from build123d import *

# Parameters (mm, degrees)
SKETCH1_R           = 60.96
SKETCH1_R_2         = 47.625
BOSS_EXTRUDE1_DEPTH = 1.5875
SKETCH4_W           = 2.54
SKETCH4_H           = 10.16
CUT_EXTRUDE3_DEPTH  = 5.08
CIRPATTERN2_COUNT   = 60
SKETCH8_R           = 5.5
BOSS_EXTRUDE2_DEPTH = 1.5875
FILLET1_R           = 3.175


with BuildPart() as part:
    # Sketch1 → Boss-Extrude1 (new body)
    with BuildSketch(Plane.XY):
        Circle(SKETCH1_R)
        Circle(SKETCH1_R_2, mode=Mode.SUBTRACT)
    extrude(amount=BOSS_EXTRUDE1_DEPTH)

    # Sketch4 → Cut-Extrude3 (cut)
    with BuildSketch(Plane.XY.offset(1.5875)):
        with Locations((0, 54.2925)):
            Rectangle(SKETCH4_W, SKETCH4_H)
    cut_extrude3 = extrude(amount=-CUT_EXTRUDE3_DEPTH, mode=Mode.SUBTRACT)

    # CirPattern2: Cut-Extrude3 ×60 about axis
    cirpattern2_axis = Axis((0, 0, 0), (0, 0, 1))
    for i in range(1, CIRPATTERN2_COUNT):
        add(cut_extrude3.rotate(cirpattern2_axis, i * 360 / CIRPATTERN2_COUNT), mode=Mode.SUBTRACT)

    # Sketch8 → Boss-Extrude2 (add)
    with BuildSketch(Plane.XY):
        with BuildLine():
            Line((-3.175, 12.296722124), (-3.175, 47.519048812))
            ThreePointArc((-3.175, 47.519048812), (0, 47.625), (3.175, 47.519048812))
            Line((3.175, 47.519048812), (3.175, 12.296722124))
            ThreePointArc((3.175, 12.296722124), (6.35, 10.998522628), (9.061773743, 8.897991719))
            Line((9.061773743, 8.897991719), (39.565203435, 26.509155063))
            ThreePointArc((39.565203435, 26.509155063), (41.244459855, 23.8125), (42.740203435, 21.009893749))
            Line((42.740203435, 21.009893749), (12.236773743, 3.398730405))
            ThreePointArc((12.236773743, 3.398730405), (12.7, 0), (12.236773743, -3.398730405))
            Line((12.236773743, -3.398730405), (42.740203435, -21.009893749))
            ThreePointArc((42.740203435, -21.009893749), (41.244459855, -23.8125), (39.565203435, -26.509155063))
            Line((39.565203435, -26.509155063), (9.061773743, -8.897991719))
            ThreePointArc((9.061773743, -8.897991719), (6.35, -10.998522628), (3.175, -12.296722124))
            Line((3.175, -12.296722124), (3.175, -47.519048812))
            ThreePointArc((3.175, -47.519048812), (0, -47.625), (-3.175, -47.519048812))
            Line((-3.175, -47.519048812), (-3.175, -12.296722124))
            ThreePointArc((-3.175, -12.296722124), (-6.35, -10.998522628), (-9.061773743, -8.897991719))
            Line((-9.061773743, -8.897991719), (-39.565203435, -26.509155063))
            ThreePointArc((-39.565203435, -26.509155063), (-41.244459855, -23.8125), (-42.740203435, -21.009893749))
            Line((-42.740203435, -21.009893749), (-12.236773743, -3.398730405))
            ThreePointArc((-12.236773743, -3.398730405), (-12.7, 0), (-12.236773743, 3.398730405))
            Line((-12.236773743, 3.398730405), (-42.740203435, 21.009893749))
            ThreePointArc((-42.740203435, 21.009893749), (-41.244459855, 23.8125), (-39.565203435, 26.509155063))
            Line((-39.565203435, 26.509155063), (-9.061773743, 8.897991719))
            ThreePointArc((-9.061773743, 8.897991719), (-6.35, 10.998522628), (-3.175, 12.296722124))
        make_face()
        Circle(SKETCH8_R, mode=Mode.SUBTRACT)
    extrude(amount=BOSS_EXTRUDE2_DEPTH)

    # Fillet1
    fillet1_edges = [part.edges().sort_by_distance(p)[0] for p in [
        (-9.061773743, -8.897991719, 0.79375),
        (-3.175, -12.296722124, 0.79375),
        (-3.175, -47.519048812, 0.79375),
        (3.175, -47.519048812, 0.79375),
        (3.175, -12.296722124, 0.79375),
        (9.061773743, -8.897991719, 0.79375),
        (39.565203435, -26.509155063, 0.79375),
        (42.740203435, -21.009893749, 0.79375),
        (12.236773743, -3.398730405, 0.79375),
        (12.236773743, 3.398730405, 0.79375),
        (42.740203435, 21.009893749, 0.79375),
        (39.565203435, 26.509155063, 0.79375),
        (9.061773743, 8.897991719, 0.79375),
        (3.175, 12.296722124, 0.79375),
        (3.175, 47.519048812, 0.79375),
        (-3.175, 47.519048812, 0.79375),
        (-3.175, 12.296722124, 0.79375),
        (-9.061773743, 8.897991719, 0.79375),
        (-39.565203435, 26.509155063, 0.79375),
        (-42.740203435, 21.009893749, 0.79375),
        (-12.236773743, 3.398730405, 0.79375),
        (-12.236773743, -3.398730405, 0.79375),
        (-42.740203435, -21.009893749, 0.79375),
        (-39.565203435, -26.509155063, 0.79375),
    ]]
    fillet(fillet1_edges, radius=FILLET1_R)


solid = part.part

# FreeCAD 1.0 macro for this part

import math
import FreeCAD as App
import Part
import Sketcher
Q = App.Units.Quantity


def edges_at(feature, points):
    """Names of the edges that pass closest to the given points."""
    edges = feature.Shape.Edges
    near = lambda p: min(range(len(edges)), key=lambda i: edges[i].distToShape(Part.Vertex(*p))[0])
    return sorted({f"Edge{near(p) + 1}" for p in points})


def add_polygon(sketch, points):
    """Adds a closed chain of lines whose ends are joined by coincident constraints."""
    first, n = sketch.GeometryCount, len(points)
    for a, b in zip(points, points[1:] + points[:1]):
        sketch.addGeometry(Part.LineSegment(App.Vector(*a, 0), App.Vector(*b, 0)), False)
    for i in range(n):
        sketch.addConstraint(Sketcher.Constraint("Coincident", first + i, 2, first + (i + 1) % n, 1))

doc = App.newDocument("Part")
body = doc.addObject("PartDesign::Body", "Body")

sketch1 = doc.addObject("Sketcher::SketchObject", "Sketch")
body.addObject(sketch1)
sketch1.AttachmentSupport = (doc.XY_Plane, [""])
sketch1.MapMode = "FlatFace"
sketch1.addGeometry([
    Part.Circle(App.Vector(0, 0, 0), App.Vector(0, 0, 1), 61),
    Part.Circle(App.Vector(0, 0, 0), App.Vector(0, 0, 1), 48),
], False)
sketch1.addConstraint([
    Sketcher.Constraint("Coincident", 0, 3, -1, 1),
    Sketcher.Constraint("Coincident", 1, 3, -1, 1),
    Sketcher.Constraint("Diameter", 0, Q("4.8 in")),
    Sketcher.Constraint("Diameter", 1, Q("3.75 in")),
])
pad1 = doc.addObject("PartDesign::Pad", "Pad")
body.addObject(pad1)
pad1.Profile = sketch1
pad1.Length = Q("0.0625 in")

sketch2 = doc.addObject("Sketcher::SketchObject", "Sketch001")
body.addObject(sketch2)
sketch2.AttachmentSupport = (doc.XY_Plane, [""])
sketch2.MapMode = "FlatFace"
sketch2.AttachmentOffset = App.Placement(App.Vector(0, 0, 0.0625 * 25.4), App.Rotation())
add_polygon(sketch2, [(-1.3, 59.4), (-1.3, 49.2), (1.3, 49.2), (1.3, 59.4)])
sketch2.addConstraint([
    Sketcher.Constraint("Vertical", 0),
    Sketcher.Constraint("Horizontal", 1),
    Sketcher.Constraint("Vertical", 2),
    Sketcher.Constraint("Horizontal", 3),
    Sketcher.Constraint("DistanceX", 1, 1, 1, 2, Q("0.1 in")),
    Sketcher.Constraint("DistanceY", 0, 2, 0, 1, Q("0.4 in")),
    Sketcher.Constraint("DistanceX", 0, 2, -1, 1, Q("0.05 in")),
    Sketcher.Constraint("DistanceY", -1, 1, 0, 2, Q("1.9375 in")),
])
pocket1 = doc.addObject("PartDesign::Pocket", "Pocket")
body.addObject(pocket1)
pocket1.Profile = sketch2
pocket1.Length = Q("0.2 in")
doc.recompute()

polarpattern = doc.addObject("PartDesign::PolarPattern", "PolarPattern")
body.addObject(polarpattern)
polarpattern.Originals = [pocket1]
polarpattern.Axis = (doc.Z_Axis, [""])
polarpattern.Angle = 360
polarpattern.Occurrences = 60
body.Tip = polarpattern

sketch3 = doc.addObject("Sketcher::SketchObject", "Sketch002")
body.addObject(sketch3)
sketch3.AttachmentSupport = (doc.XY_Plane, [""])
sketch3.MapMode = "FlatFace"
sketch3.addGeometry([
    Part.LineSegment(App.Vector(-3, 48, 0), App.Vector(-3, 12, 0)),
    Part.ArcOfCircle(Part.Circle(App.Vector(0, 0, 0), App.Vector(0, 0, 1), 13), math.radians(104), math.radians(136)),
    Part.LineSegment(App.Vector(-9, 9, 0), App.Vector(-40, 27, 0)),
    Part.ArcOfCircle(Part.Circle(App.Vector(0, 0, 0), App.Vector(0, 0, 1), 48), math.radians(146.18), math.radians(153.82)),
    Part.LineSegment(App.Vector(-43, 21, 0), App.Vector(-12, 3, 0)),
    Part.ArcOfCircle(Part.Circle(App.Vector(0, 0, 0), App.Vector(0, 0, 1), 13), math.radians(164), math.radians(196)),
    Part.LineSegment(App.Vector(-12, -3, 0), App.Vector(-43, -21, 0)),
    Part.ArcOfCircle(Part.Circle(App.Vector(0, 0, 0), App.Vector(0, 0, 1), 48), math.radians(-153.82), math.radians(-146.18)),
    Part.LineSegment(App.Vector(-40, -27, 0), App.Vector(-9, -9, 0)),
    Part.ArcOfCircle(Part.Circle(App.Vector(0, 0, 0), App.Vector(0, 0, 1), 13), math.radians(-136), math.radians(-104)),
    Part.LineSegment(App.Vector(-3, -12, 0), App.Vector(-3, -48, 0)),
    Part.ArcOfCircle(Part.Circle(App.Vector(0, 0, 0), App.Vector(0, 0, 1), 48), math.radians(-93.82), math.radians(-86.18)),
    Part.LineSegment(App.Vector(3, -48, 0), App.Vector(3, -12, 0)),
    Part.ArcOfCircle(Part.Circle(App.Vector(0, 0, 0), App.Vector(0, 0, 1), 13), math.radians(-76), math.radians(-44)),
    Part.LineSegment(App.Vector(9, -9, 0), App.Vector(40, -27, 0)),
    Part.ArcOfCircle(Part.Circle(App.Vector(0, 0, 0), App.Vector(0, 0, 1), 48), math.radians(-33.82), math.radians(-26.18)),
    Part.LineSegment(App.Vector(43, -21, 0), App.Vector(12, -3, 0)),
    Part.ArcOfCircle(Part.Circle(App.Vector(0, 0, 0), App.Vector(0, 0, 1), 13), math.radians(-16), math.radians(16)),
    Part.LineSegment(App.Vector(12, 3, 0), App.Vector(43, 21, 0)),
    Part.ArcOfCircle(Part.Circle(App.Vector(0, 0, 0), App.Vector(0, 0, 1), 48), math.radians(26.18), math.radians(33.82)),
    Part.LineSegment(App.Vector(40, 27, 0), App.Vector(9, 9, 0)),
    Part.ArcOfCircle(Part.Circle(App.Vector(0, 0, 0), App.Vector(0, 0, 1), 13), math.radians(44), math.radians(76)),
    Part.LineSegment(App.Vector(3, 12, 0), App.Vector(3, 48, 0)),
    Part.ArcOfCircle(Part.Circle(App.Vector(0, 0, 0), App.Vector(0, 0, 1), 48), math.radians(86.18), math.radians(93.82)),
    Part.Circle(App.Vector(0, 0, 0), App.Vector(0, 0, 1), 6),
], False)
sketch3.addConstraint([
    Sketcher.Constraint("Coincident", 0, 2, 1, 1),
    Sketcher.Constraint("Coincident", 1, 2, 2, 1),
    Sketcher.Constraint("Coincident", 2, 2, 3, 1),
    Sketcher.Constraint("Coincident", 3, 2, 4, 1),
    Sketcher.Constraint("Coincident", 4, 2, 5, 1),
    Sketcher.Constraint("Coincident", 5, 2, 6, 1),
    Sketcher.Constraint("Coincident", 6, 2, 7, 1),
    Sketcher.Constraint("Coincident", 7, 2, 8, 1),
    Sketcher.Constraint("Coincident", 8, 2, 9, 1),
    Sketcher.Constraint("Coincident", 9, 2, 10, 1),
    Sketcher.Constraint("Coincident", 10, 2, 11, 1),
    Sketcher.Constraint("Coincident", 11, 2, 12, 1),
    Sketcher.Constraint("Coincident", 12, 2, 13, 1),
    Sketcher.Constraint("Coincident", 13, 2, 14, 1),
    Sketcher.Constraint("Coincident", 14, 2, 15, 1),
    Sketcher.Constraint("Coincident", 15, 2, 16, 1),
    Sketcher.Constraint("Coincident", 16, 2, 17, 1),
    Sketcher.Constraint("Coincident", 17, 2, 18, 1),
    Sketcher.Constraint("Coincident", 18, 2, 19, 1),
    Sketcher.Constraint("Coincident", 19, 2, 20, 1),
    Sketcher.Constraint("Coincident", 20, 2, 21, 1),
    Sketcher.Constraint("Coincident", 21, 2, 22, 1),
    Sketcher.Constraint("Coincident", 22, 2, 23, 1),
    Sketcher.Constraint("Coincident", 23, 2, 0, 1),
    Sketcher.Constraint("Vertical", 0),
    Sketcher.Constraint("Vertical", 10),
    Sketcher.Constraint("Vertical", 12),
    Sketcher.Constraint("Vertical", 22),
    Sketcher.Constraint("Coincident", 1, 3, -1, 1),
    Sketcher.Constraint("Coincident", 3, 3, -1, 1),
    Sketcher.Constraint("Coincident", 5, 3, -1, 1),
    Sketcher.Constraint("Coincident", 7, 3, -1, 1),
    Sketcher.Constraint("Coincident", 9, 3, -1, 1),
    Sketcher.Constraint("Coincident", 11, 3, -1, 1),
    Sketcher.Constraint("Coincident", 13, 3, -1, 1),
    Sketcher.Constraint("Coincident", 15, 3, -1, 1),
    Sketcher.Constraint("Coincident", 17, 3, -1, 1),
    Sketcher.Constraint("Coincident", 19, 3, -1, 1),
    Sketcher.Constraint("Coincident", 21, 3, -1, 1),
    Sketcher.Constraint("Coincident", 23, 3, -1, 1),
    Sketcher.Constraint("Coincident", 24, 3, -1, 1),
    Sketcher.Constraint("Equal", 1, 5),
    Sketcher.Constraint("Equal", 3, 7),
    Sketcher.Constraint("Equal", 5, 9),
    Sketcher.Constraint("Equal", 7, 11),
    Sketcher.Constraint("Equal", 9, 13),
    Sketcher.Constraint("Equal", 11, 15),
    Sketcher.Constraint("Equal", 13, 17),
    Sketcher.Constraint("Equal", 15, 19),
    Sketcher.Constraint("Equal", 17, 21),
    Sketcher.Constraint("Equal", 19, 23),
    Sketcher.Constraint("Parallel", 2, 4),
    Sketcher.Constraint("Parallel", 6, 8),
    Sketcher.Constraint("Parallel", 4, 14),
    Sketcher.Constraint("Parallel", 14, 16),
    Sketcher.Constraint("Parallel", 8, 18),
    Sketcher.Constraint("Parallel", 18, 20),
    Sketcher.Constraint("Horizontal", 10, 2, 11, 2),
    Sketcher.Constraint("Horizontal", 8, 2, 13, 2),
    Sketcher.Constraint("Horizontal", 7, 2, 14, 2),
    Sketcher.Constraint("Horizontal", 6, 2, 15, 2),
    Sketcher.Constraint("Horizontal", 4, 2, 17, 2),
    Sketcher.Constraint("Horizontal", 2, 2, 19, 2),
    Sketcher.Constraint("Horizontal", 0, 2, 21, 2),
    Sketcher.Constraint("Vertical", 4, 2, 5, 2),
    Sketcher.Constraint("Vertical", 2, 2, 7, 2),
    Sketcher.Constraint("Vertical", 0, 2, 9, 2),
    Sketcher.Constraint("Equal", 2, 4),
    Sketcher.Constraint("Radius", 1, Q("0.5 in")),
    Sketcher.Constraint("Angle", 2, Q("150 deg")),
    Sketcher.Constraint("Radius", 3, Q("1.875 in")),
    Sketcher.Constraint("Diameter", 24, 11.0),
    Sketcher.Constraint("DistanceX", 10, 2, 11, 2, Q("0.25 in")),
    Sketcher.Constraint("DistanceX", 3, 2, 2, 2, Q("0.125 in")),
])
pad2 = doc.addObject("PartDesign::Pad", "Pad001")
body.addObject(pad2)
pad2.Profile = sketch3
pad2.Length = Q("0.0625 in")
doc.recompute()

fillet = doc.addObject("PartDesign::Fillet", "Fillet")
body.addObject(fillet)
fillet.Base = (pad2, edges_at(pad2, [
    (-9.062, -8.898, 0.794),
    (-3.175, -12.297, 0.794),
    (-3.175, -47.519, 0.794),
    (3.175, -47.519, 0.794),
    (3.175, -12.297, 0.794),
    (9.062, -8.898, 0.794),
    (39.565, -26.509, 0.794),
    (42.74, -21.01, 0.794),
    (12.237, -3.399, 0.794),
    (12.237, 3.399, 0.794),
    (42.74, 21.01, 0.794),
    (39.565, 26.509, 0.794),
    (9.062, 8.898, 0.794),
    (3.175, 12.297, 0.794),
    (3.175, 47.519, 0.794),
    (-3.175, 47.519, 0.794),
    (-3.175, 12.297, 0.794),
    (-9.062, 8.898, 0.794),
    (-39.565, 26.509, 0.794),
    (-42.74, 21.01, 0.794),
    (-12.237, 3.399, 0.794),
    (-12.237, -3.399, 0.794),
    (-42.74, -21.01, 0.794),
    (-39.565, -26.509, 0.794),
]))
fillet.Radius = Q("0.125 in")

doc.recompute()
